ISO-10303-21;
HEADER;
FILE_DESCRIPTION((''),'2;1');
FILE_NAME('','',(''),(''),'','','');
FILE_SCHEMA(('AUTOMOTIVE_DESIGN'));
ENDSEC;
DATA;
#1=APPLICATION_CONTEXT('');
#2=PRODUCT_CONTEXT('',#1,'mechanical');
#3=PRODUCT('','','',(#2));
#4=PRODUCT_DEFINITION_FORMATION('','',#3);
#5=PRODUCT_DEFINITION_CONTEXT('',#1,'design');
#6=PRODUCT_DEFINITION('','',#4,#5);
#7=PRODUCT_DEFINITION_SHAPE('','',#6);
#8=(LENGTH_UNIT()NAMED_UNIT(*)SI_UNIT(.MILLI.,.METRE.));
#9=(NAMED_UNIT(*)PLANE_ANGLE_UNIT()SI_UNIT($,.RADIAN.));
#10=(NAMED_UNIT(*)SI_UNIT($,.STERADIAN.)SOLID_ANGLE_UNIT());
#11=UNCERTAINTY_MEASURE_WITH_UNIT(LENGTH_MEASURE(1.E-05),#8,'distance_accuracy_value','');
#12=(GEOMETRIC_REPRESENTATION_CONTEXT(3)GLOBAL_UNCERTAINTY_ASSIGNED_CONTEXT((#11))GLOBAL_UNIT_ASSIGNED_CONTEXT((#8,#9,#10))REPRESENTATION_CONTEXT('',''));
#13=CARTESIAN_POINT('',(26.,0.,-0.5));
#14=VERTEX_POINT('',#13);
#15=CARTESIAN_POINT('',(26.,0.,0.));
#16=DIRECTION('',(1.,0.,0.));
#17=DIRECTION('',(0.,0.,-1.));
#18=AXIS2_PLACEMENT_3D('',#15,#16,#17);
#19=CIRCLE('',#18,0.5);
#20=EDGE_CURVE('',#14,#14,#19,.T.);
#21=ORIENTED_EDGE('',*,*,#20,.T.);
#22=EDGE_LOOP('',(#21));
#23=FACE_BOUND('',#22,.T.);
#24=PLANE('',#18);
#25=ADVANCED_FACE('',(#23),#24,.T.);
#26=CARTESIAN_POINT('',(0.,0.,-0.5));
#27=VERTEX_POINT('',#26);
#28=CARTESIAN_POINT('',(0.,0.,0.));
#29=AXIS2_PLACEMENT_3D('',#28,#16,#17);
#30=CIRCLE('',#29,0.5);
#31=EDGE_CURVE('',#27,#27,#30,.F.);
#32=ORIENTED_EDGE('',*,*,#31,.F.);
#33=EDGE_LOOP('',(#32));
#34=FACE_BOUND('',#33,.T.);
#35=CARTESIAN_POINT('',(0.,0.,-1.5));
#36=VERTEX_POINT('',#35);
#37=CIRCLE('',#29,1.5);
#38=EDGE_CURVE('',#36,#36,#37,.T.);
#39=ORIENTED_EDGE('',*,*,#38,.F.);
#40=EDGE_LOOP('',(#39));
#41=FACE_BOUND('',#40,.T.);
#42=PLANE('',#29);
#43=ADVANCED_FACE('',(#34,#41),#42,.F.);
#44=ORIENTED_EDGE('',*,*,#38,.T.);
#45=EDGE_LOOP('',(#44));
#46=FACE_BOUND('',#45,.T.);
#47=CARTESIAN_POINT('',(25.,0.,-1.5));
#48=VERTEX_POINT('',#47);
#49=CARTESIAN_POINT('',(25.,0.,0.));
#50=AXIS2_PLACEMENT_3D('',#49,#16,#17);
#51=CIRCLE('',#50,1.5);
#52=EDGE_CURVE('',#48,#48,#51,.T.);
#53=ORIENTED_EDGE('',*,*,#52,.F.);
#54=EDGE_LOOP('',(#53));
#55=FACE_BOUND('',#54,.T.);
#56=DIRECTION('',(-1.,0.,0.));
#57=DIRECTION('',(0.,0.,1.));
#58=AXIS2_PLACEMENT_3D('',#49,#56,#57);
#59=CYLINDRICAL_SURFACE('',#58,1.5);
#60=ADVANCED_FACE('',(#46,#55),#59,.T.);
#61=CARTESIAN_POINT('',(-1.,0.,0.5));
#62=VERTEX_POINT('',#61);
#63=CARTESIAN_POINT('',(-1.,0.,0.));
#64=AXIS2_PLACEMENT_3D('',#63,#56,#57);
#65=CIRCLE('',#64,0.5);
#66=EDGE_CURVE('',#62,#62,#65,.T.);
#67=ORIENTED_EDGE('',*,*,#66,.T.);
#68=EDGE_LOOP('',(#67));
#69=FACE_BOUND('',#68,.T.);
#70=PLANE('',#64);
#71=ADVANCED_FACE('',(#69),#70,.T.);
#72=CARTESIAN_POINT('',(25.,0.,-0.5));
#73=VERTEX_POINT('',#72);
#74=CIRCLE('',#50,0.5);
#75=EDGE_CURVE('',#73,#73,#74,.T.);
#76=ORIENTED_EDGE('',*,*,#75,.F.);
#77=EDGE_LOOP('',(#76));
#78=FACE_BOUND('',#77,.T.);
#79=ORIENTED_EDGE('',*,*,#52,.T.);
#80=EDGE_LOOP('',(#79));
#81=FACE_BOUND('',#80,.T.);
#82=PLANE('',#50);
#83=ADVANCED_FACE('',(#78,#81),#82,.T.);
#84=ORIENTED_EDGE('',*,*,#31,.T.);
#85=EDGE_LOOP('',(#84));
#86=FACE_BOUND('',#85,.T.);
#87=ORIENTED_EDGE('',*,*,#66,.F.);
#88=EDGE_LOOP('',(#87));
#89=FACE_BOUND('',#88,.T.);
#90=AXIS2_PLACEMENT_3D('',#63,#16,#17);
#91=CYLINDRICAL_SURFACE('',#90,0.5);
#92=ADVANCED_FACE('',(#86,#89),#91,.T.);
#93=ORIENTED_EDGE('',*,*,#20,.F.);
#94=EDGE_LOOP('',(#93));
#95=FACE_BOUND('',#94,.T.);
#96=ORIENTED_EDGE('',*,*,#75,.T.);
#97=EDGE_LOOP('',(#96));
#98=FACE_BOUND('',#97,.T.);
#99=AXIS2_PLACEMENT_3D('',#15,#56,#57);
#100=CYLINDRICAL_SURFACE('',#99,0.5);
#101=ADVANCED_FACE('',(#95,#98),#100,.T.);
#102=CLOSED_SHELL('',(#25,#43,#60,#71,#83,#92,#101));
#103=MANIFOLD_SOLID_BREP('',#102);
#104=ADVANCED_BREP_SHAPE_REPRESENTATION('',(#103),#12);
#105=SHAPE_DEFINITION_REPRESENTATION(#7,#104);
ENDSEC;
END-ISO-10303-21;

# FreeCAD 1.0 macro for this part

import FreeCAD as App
import Part
import Sketcher
from FreeCAD import Vector

doc = App.newDocument("Part")
body = doc.addObject("PartDesign::Body", "Body")

# Sketch on YZ plane
sketch1 = doc.addObject("Sketcher::SketchObject", "Sketch")
body.addObject(sketch1)
sketch1.AttachmentSupport = (doc.YZ_Plane, [""])
sketch1.MapMode = "FlatFace"
sketch1.addGeometry(Part.Circle(Vector(0, 0, 0), Vector(0, 0, 1), 1.5), False)
sketch1.addConstraint([
    Sketcher.Constraint("Coincident", 0, 3, -1, 1),
    Sketcher.Constraint("Diameter", 0, 3.0),
])
pad1 = doc.addObject("PartDesign::Pad", "Pad")
body.addObject(pad1)
pad1.Profile = sketch1
pad1.Length = 25

# Sketch on YZ plane
sketch2 = doc.addObject("Sketcher::SketchObject", "Sketch001")
body.addObject(sketch2)
sketch2.AttachmentSupport = (doc.YZ_Plane, [""])
sketch2.MapMode = "FlatFace"
sketch2.AttachmentOffset = App.Placement(Vector(0, 0, 25), App.Rotation())
sketch2.addGeometry(Part.Circle(Vector(0, 0, 0), Vector(0, 0, 1), 0.5), False)
sketch2.addConstraint([
    Sketcher.Constraint("Coincident", 0, 3, -1, 1),
    Sketcher.Constraint("Diameter", 0, 1.0),
])
pad2 = doc.addObject("PartDesign::Pad", "Pad001")
body.addObject(pad2)
pad2.Profile = sketch2
pad2.Length = 1

# Sketch on YZ plane
sketch3 = doc.addObject("Sketcher::SketchObject", "Sketch002")
body.addObject(sketch3)
sketch3.AttachmentSupport = (doc.YZ_Plane, [""])
sketch3.MapMode = "FlatFace"
sketch3.addGeometry(Part.Circle(Vector(0, 0, 0), Vector(0, 0, 1), 0.5), False)
sketch3.addConstraint([
    Sketcher.Constraint("Coincident", 0, 3, -1, 1),
    Sketcher.Constraint("Diameter", 0, 1.0),
])
pad3 = doc.addObject("PartDesign::Pad", "Pad002")
body.addObject(pad3)
pad3.Profile = sketch3
pad3.Length = 1
pad3.Reversed = True

doc.recompute()
